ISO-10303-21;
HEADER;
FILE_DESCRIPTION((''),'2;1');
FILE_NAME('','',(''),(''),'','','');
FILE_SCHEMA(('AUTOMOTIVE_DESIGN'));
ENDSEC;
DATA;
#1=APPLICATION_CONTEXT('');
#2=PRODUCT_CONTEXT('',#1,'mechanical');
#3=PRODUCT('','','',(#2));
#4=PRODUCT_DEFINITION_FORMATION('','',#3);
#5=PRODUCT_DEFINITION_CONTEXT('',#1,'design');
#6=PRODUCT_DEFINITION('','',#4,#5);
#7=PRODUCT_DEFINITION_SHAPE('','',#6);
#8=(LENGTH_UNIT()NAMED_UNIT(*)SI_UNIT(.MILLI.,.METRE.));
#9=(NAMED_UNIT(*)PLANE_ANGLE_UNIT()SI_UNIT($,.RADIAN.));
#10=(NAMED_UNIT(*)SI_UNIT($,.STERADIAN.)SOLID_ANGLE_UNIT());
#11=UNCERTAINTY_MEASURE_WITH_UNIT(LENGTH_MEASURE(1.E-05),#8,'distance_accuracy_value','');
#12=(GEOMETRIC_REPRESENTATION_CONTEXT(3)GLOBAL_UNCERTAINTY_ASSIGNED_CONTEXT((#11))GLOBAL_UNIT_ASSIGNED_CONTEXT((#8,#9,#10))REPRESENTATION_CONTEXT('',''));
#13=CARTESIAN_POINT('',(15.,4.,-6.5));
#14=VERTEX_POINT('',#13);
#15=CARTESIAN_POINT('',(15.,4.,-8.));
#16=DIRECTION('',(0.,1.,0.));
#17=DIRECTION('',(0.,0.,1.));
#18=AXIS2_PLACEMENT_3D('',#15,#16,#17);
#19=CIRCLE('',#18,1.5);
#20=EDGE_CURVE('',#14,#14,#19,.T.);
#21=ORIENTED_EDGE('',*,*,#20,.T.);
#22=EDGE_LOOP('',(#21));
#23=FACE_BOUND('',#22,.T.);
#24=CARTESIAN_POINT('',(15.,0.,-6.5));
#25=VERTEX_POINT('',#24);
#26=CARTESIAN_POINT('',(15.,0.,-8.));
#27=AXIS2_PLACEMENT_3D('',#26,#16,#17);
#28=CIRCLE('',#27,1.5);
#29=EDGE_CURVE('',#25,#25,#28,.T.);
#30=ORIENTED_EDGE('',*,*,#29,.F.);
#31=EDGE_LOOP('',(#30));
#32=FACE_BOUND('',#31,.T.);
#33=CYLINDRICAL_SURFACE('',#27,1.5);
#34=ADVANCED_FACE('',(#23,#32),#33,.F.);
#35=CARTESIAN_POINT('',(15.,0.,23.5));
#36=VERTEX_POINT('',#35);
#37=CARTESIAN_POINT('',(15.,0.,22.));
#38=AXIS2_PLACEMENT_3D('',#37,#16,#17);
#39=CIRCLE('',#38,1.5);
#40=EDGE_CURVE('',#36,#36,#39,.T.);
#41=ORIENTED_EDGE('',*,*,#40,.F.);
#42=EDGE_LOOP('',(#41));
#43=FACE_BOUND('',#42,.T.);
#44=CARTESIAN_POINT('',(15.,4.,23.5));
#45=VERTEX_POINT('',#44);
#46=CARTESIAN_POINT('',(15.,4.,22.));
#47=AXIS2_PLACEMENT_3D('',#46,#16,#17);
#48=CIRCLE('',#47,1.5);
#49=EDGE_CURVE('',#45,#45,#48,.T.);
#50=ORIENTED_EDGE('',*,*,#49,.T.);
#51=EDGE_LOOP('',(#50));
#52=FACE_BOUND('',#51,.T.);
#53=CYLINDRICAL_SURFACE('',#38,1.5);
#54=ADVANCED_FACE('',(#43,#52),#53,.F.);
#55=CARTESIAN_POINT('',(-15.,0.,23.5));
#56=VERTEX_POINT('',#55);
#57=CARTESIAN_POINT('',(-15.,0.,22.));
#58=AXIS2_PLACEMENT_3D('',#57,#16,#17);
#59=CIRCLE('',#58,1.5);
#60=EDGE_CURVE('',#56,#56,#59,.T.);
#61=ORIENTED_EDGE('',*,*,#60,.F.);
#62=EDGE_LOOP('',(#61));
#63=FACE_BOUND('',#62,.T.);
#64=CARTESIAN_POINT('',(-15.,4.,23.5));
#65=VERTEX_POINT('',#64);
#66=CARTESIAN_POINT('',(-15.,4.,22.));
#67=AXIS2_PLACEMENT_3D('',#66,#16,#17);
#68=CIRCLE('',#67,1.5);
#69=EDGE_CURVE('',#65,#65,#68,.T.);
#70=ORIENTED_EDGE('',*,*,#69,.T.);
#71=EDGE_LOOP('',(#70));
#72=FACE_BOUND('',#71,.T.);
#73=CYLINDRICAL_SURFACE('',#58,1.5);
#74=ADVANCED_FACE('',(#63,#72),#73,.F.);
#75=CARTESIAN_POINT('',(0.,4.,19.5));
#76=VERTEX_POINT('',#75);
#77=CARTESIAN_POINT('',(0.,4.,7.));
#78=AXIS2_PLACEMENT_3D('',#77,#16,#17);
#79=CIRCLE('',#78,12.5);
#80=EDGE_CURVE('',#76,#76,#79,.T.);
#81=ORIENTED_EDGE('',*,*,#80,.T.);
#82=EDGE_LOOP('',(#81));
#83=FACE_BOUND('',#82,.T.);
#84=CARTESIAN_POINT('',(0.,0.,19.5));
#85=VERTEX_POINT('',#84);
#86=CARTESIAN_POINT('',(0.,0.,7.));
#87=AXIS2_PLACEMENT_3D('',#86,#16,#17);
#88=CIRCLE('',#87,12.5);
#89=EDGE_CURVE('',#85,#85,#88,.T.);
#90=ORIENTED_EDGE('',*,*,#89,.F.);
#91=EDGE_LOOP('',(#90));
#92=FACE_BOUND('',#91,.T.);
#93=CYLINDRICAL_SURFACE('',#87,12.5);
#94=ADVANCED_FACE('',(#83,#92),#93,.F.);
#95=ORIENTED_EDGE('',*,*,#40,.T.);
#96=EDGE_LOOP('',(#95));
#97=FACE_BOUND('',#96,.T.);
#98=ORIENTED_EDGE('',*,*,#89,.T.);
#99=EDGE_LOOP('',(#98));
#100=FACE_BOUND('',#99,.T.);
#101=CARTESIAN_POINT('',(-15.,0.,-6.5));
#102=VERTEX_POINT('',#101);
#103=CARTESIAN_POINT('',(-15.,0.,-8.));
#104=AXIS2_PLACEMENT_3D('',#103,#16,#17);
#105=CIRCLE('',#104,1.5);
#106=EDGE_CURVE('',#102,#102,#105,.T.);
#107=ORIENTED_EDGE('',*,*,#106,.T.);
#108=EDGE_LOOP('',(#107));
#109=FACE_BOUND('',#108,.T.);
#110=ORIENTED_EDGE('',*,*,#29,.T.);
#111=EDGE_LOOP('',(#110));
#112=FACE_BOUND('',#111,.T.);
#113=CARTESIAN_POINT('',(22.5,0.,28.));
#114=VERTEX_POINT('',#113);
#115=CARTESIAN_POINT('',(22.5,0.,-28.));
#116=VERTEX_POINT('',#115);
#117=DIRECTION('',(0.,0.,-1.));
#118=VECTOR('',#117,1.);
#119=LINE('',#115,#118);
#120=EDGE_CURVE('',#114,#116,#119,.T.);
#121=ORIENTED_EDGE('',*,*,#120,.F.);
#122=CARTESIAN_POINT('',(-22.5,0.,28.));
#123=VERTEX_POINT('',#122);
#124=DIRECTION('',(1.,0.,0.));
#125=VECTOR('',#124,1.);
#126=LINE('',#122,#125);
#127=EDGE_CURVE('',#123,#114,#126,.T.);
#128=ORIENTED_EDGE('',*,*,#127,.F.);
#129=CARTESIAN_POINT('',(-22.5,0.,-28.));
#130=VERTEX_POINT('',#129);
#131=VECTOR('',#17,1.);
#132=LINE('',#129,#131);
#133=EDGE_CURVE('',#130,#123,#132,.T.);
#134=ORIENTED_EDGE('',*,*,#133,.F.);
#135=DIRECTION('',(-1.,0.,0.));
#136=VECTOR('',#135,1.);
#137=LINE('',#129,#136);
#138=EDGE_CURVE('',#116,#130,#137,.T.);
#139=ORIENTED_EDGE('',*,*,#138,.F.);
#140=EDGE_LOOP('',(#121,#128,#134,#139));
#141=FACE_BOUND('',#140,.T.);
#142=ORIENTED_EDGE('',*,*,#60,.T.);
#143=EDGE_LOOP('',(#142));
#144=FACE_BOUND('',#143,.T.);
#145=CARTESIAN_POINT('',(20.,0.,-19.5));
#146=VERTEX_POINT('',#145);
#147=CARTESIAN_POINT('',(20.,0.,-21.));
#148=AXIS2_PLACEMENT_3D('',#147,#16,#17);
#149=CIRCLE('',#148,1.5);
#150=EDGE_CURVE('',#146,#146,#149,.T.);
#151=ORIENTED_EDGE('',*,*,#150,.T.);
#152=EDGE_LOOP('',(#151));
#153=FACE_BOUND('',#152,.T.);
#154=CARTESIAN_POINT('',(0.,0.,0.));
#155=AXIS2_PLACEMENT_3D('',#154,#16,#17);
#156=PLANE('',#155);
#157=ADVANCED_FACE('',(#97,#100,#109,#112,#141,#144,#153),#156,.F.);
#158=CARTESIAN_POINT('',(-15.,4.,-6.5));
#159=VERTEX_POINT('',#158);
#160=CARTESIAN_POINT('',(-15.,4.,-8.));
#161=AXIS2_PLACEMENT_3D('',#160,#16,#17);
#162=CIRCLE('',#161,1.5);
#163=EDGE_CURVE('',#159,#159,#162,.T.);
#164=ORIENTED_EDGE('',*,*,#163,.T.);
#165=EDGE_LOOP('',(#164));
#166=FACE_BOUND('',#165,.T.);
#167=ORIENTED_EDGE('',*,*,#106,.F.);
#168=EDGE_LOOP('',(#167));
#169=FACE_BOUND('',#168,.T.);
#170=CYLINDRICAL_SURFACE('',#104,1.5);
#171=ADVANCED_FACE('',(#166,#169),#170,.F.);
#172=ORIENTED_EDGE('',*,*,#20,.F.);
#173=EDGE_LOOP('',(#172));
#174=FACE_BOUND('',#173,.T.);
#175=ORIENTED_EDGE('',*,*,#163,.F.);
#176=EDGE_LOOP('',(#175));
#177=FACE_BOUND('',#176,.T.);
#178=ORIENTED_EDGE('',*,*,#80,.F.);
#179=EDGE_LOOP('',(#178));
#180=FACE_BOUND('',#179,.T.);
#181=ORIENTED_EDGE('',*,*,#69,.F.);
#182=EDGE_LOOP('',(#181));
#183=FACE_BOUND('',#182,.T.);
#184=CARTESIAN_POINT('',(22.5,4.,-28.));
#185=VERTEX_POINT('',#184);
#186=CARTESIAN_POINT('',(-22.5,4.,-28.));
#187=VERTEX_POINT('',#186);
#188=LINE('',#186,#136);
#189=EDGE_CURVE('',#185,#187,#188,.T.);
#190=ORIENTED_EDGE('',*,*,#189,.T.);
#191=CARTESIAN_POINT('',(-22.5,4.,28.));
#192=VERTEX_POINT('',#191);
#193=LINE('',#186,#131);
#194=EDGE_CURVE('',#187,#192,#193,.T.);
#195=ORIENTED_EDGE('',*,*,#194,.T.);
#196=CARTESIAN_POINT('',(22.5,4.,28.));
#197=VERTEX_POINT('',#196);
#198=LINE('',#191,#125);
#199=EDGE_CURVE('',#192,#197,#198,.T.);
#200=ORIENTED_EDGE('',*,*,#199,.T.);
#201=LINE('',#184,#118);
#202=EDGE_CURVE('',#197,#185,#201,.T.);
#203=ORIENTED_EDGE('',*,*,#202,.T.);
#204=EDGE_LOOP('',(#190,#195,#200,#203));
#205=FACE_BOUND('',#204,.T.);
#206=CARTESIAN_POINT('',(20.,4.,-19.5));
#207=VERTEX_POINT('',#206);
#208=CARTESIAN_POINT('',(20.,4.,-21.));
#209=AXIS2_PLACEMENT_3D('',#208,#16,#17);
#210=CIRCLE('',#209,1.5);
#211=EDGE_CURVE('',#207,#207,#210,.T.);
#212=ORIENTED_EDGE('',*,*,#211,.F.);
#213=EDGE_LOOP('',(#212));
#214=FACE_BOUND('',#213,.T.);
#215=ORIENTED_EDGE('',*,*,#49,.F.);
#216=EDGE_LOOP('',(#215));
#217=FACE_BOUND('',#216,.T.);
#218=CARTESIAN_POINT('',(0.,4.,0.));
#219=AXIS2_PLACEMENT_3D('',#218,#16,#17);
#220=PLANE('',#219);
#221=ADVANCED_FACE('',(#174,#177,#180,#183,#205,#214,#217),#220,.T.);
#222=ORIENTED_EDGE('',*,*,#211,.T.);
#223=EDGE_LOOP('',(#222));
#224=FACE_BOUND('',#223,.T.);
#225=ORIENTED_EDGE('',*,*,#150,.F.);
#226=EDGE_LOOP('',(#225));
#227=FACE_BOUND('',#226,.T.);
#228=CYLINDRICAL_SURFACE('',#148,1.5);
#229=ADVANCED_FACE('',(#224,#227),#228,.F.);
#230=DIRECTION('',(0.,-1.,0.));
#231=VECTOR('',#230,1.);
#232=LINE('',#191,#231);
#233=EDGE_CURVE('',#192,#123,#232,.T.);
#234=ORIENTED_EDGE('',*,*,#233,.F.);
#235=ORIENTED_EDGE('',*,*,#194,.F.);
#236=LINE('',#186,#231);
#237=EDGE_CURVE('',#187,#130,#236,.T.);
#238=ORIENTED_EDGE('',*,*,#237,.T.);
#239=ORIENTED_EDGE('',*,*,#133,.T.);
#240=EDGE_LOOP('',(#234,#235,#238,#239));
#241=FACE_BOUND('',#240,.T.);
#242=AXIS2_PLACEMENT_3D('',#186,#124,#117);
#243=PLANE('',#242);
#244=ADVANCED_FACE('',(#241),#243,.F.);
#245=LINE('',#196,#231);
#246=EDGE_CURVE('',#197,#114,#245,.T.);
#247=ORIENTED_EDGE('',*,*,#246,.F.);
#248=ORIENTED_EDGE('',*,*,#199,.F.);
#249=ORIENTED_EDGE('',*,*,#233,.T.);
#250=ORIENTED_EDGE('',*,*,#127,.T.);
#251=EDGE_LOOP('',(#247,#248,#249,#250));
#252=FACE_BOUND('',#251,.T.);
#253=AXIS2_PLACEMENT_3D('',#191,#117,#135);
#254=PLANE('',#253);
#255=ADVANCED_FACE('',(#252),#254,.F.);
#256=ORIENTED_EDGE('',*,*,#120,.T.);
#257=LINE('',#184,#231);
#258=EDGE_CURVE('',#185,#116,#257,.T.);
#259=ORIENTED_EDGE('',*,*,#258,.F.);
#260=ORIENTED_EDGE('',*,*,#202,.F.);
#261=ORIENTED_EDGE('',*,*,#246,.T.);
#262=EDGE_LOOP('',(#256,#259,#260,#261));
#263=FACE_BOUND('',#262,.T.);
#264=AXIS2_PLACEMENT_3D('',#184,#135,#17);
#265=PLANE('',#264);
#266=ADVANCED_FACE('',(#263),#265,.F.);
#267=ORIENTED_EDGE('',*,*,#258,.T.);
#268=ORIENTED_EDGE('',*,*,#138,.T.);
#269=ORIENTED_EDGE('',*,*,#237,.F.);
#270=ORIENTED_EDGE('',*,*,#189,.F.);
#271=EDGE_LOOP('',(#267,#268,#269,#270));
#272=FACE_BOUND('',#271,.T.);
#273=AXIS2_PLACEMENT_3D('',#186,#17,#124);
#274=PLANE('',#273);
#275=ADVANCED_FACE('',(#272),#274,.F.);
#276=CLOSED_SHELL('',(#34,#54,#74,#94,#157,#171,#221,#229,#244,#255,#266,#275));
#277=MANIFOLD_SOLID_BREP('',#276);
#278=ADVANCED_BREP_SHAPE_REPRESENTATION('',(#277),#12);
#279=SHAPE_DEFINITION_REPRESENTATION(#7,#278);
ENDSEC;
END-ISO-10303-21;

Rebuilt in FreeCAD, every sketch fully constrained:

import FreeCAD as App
import Part
import Sketcher

V = App.Vector
Q = App.Units.Quantity

doc = App.newDocument("Part")
body = doc.addObject("PartDesign::Body", "Body")

# Sketch on XZ plane
sketch1 = body.newObject("Sketcher::SketchObject", "Sketch")
sketch1.AttachmentSupport = (doc.getObject("XZ_Plane"), [""])
sketch1.MapMode = "FlatFace"
sketch1.addGeometry(Part.LineSegment(V(-22, -28, 0), V(-22, 28, 0)), False)
sketch1.addGeometry(Part.LineSegment(V(-22, 28, 0), V(22, 28, 0)), False)
sketch1.addGeometry(Part.LineSegment(V(22, 28, 0), V(22, -28, 0)), False)
sketch1.addGeometry(Part.LineSegment(V(22, -28, 0), V(-22, -28, 0)), False)
sketch1.addConstraint(Sketcher.Constraint("Coincident", 0, 2, 1, 1))
sketch1.addConstraint(Sketcher.Constraint("Coincident", 1, 2, 2, 1))
sketch1.addConstraint(Sketcher.Constraint("Coincident", 2, 2, 3, 1))
sketch1.addConstraint(Sketcher.Constraint("Coincident", 3, 2, 0, 1))
sketch1.addConstraint(Sketcher.Constraint("Vertical", 0))
sketch1.addConstraint(Sketcher.Constraint("Horizontal", 1))
sketch1.addConstraint(Sketcher.Constraint("Vertical", 2))
sketch1.addConstraint(Sketcher.Constraint("Horizontal", 3))
sketch1.addConstraint(Sketcher.Constraint("Symmetric", 0, 2, 2, 2, -1, 1))
sketch1.addConstraint(Sketcher.Constraint("DistanceX", 1, 1, 1, 2, Q("45 mm")))
sketch1.addConstraint(Sketcher.Constraint("DistanceY", 0, 1, 0, 2, Q("56 mm")))
pad1 = body.newObject("PartDesign::Pad", "Pad")
pad1.Profile = sketch1
pad1.Length = 4
pad1.Reversed = True

# Sketch on XZ plane
sketch2 = body.newObject("Sketcher::SketchObject", "Sketch001")
sketch2.AttachmentSupport = (doc.getObject("XZ_Plane"), [""])
sketch2.MapMode = "FlatFace"
sketch2.AttachmentOffset = App.Placement(V(0, 0, -4), App.Rotation())
sketch2.addGeometry(Part.Circle(V(-15, -8, 0), V(0, 0, 1), 1.5), False)
sketch2.addGeometry(Part.Circle(V(-15, 22, 0), V(0, 0, 1), 1.5), False)
sketch2.addGeometry(Part.Circle(V(15, 22, 0), V(0, 0, 1), 1.5), False)
sketch2.addGeometry(Part.Circle(V(15, -8, 0), V(0, 0, 1), 1.5), False)
sketch2.addGeometry(Part.Circle(V(20, -21, 0), V(0, 0, 1), 1.5), False)
sketch2.addGeometry(Part.Circle(V(0, 7, 0), V(0, 0, 1), 12.5), False)
sketch2.addConstraint(Sketcher.Constraint("Equal", 0, 1))
sketch2.addConstraint(Sketcher.Constraint("Equal", 1, 2))
sketch2.addConstraint(Sketcher.Constraint("Equal", 2, 3))
sketch2.addConstraint(Sketcher.Constraint("Equal", 3, 4))
sketch2.addConstraint(Sketcher.Constraint("Symmetric", 1, 3, 2, 3, -2))
sketch2.addConstraint(Sketcher.Constraint("Symmetric", 0, 3, 3, 3, -2))
sketch2.addConstraint(Sketcher.Constraint("PointOnObject", 5, 3, -2))
sketch2.addConstraint(Sketcher.Constraint("Vertical", 0, 3, 1, 3))
sketch2.addConstraint(Sketcher.Constraint("Diameter", 0, Q("3 mm")))
sketch2.addConstraint(Sketcher.Constraint("Diameter", 5, Q("25 mm")))
sketch2.addConstraint(Sketcher.Constraint("DistanceX", 0, 3, -1, 1, Q("15 mm")))
sketch2.addConstraint(Sketcher.Constraint("DistanceY", 0, 3, -1, 1, Q("8 mm")))
sketch2.addConstraint(Sketcher.Constraint("DistanceY", -1, 1, 1, 3, Q("22 mm")))
sketch2.addConstraint(Sketcher.Constraint("DistanceX", -1, 1, 4, 3, Q("20 mm")))
sketch2.addConstraint(Sketcher.Constraint("DistanceY", 4, 3, -1, 1, Q("21 mm")))
sketch2.addConstraint(Sketcher.Constraint("DistanceY", -1, 1, 5, 3, Q("7 mm")))
pocket1 = body.newObject("PartDesign::Pocket", "Pocket")
pocket1.Profile = sketch2
pocket1.Type = "ThroughAll"
pocket1.Reversed = True

doc.recompute()
